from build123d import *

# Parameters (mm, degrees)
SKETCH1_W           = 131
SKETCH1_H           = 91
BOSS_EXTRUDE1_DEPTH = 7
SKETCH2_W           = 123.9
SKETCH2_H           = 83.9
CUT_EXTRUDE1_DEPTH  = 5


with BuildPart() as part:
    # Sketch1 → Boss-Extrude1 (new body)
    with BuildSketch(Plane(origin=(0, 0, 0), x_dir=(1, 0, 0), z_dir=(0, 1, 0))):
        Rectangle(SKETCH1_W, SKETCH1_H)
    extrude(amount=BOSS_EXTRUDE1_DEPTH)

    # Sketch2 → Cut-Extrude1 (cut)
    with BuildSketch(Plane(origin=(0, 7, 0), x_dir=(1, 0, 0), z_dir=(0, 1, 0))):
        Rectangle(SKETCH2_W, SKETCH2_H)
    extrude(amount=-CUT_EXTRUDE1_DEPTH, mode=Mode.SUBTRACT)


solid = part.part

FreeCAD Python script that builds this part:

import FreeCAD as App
import Part
import Sketcher
from FreeCAD import Vector
Q = App.Units.Quantity


def add_polygon(sketch, points):
    """Adds a closed chain of lines whose ends are joined by coincident constraints."""
    first, n = sketch.GeometryCount, len(points)
    for a, b in zip(points, points[1:] + points[:1]):
        sketch.addGeometry(Part.LineSegment(App.Vector(*a, 0), App.Vector(*b, 0)), False)
    for i in range(n):
        sketch.addConstraint(Sketcher.Constraint("Coincident", first + i, 2, first + (i + 1) % n, 1))

doc = App.newDocument("Part")
body = doc.addObject("PartDesign::Body", "Body")

sketch1 = body.newObject("Sketcher::SketchObject", "Sketch")
sketch1.AttachmentSupport = (doc.getObject("XZ_Plane"), [""])
sketch1.MapMode = "FlatFace"
add_polygon(sketch1, [(-65.5, -45.5), (-65.5, 45.5), (65.5, 45.5), (65.5, -45.5)])
sketch1.addConstraint([
    Sketcher.Constraint("Vertical", 0),
    Sketcher.Constraint("Horizontal", 1),
    Sketcher.Constraint("Vertical", 2),
    Sketcher.Constraint("Horizontal", 3),
    Sketcher.Constraint("Symmetric", 0, 2, 2, 2, -1, 1),
    Sketcher.Constraint("DistanceX", 1, 1, 1, 2, Q("131 mm")),
    Sketcher.Constraint("DistanceY", 0, 1, 0, 2, Q("91 mm")),
])
pad1 = body.newObject("PartDesign::Pad", "Pad")
pad1.Profile = sketch1
pad1.Length = 7
pad1.Reversed = True

sketch2 = body.newObject("Sketcher::SketchObject", "Sketch001")
sketch2.AttachmentSupport = (doc.getObject("XZ_Plane"), [""])
sketch2.MapMode = "FlatFace"
sketch2.AttachmentOffset = App.Placement(Vector(0, 0, -7), App.Rotation())
add_polygon(sketch2, [(-61.95, -41.95), (-61.95, 41.95), (61.95, 41.95), (61.95, -41.95)])
sketch2.addConstraint([
    Sketcher.Constraint("Vertical", 0),
    Sketcher.Constraint("Horizontal", 1),
    Sketcher.Constraint("Vertical", 2),
    Sketcher.Constraint("Horizontal", 3),
    Sketcher.Constraint("Symmetric", 0, 2, 2, 2, -1, 1),
    Sketcher.Constraint("DistanceX", 1, 1, 1, 2, Q("123.9 mm")),
    Sketcher.Constraint("DistanceY", 0, 1, 0, 2, Q("83.9 mm")),
])
pocket1 = body.newObject("PartDesign::Pocket", "Pocket")
pocket1.Profile = sketch2
pocket1.Length = 5
pocket1.Reversed = True

doc.recompute()
